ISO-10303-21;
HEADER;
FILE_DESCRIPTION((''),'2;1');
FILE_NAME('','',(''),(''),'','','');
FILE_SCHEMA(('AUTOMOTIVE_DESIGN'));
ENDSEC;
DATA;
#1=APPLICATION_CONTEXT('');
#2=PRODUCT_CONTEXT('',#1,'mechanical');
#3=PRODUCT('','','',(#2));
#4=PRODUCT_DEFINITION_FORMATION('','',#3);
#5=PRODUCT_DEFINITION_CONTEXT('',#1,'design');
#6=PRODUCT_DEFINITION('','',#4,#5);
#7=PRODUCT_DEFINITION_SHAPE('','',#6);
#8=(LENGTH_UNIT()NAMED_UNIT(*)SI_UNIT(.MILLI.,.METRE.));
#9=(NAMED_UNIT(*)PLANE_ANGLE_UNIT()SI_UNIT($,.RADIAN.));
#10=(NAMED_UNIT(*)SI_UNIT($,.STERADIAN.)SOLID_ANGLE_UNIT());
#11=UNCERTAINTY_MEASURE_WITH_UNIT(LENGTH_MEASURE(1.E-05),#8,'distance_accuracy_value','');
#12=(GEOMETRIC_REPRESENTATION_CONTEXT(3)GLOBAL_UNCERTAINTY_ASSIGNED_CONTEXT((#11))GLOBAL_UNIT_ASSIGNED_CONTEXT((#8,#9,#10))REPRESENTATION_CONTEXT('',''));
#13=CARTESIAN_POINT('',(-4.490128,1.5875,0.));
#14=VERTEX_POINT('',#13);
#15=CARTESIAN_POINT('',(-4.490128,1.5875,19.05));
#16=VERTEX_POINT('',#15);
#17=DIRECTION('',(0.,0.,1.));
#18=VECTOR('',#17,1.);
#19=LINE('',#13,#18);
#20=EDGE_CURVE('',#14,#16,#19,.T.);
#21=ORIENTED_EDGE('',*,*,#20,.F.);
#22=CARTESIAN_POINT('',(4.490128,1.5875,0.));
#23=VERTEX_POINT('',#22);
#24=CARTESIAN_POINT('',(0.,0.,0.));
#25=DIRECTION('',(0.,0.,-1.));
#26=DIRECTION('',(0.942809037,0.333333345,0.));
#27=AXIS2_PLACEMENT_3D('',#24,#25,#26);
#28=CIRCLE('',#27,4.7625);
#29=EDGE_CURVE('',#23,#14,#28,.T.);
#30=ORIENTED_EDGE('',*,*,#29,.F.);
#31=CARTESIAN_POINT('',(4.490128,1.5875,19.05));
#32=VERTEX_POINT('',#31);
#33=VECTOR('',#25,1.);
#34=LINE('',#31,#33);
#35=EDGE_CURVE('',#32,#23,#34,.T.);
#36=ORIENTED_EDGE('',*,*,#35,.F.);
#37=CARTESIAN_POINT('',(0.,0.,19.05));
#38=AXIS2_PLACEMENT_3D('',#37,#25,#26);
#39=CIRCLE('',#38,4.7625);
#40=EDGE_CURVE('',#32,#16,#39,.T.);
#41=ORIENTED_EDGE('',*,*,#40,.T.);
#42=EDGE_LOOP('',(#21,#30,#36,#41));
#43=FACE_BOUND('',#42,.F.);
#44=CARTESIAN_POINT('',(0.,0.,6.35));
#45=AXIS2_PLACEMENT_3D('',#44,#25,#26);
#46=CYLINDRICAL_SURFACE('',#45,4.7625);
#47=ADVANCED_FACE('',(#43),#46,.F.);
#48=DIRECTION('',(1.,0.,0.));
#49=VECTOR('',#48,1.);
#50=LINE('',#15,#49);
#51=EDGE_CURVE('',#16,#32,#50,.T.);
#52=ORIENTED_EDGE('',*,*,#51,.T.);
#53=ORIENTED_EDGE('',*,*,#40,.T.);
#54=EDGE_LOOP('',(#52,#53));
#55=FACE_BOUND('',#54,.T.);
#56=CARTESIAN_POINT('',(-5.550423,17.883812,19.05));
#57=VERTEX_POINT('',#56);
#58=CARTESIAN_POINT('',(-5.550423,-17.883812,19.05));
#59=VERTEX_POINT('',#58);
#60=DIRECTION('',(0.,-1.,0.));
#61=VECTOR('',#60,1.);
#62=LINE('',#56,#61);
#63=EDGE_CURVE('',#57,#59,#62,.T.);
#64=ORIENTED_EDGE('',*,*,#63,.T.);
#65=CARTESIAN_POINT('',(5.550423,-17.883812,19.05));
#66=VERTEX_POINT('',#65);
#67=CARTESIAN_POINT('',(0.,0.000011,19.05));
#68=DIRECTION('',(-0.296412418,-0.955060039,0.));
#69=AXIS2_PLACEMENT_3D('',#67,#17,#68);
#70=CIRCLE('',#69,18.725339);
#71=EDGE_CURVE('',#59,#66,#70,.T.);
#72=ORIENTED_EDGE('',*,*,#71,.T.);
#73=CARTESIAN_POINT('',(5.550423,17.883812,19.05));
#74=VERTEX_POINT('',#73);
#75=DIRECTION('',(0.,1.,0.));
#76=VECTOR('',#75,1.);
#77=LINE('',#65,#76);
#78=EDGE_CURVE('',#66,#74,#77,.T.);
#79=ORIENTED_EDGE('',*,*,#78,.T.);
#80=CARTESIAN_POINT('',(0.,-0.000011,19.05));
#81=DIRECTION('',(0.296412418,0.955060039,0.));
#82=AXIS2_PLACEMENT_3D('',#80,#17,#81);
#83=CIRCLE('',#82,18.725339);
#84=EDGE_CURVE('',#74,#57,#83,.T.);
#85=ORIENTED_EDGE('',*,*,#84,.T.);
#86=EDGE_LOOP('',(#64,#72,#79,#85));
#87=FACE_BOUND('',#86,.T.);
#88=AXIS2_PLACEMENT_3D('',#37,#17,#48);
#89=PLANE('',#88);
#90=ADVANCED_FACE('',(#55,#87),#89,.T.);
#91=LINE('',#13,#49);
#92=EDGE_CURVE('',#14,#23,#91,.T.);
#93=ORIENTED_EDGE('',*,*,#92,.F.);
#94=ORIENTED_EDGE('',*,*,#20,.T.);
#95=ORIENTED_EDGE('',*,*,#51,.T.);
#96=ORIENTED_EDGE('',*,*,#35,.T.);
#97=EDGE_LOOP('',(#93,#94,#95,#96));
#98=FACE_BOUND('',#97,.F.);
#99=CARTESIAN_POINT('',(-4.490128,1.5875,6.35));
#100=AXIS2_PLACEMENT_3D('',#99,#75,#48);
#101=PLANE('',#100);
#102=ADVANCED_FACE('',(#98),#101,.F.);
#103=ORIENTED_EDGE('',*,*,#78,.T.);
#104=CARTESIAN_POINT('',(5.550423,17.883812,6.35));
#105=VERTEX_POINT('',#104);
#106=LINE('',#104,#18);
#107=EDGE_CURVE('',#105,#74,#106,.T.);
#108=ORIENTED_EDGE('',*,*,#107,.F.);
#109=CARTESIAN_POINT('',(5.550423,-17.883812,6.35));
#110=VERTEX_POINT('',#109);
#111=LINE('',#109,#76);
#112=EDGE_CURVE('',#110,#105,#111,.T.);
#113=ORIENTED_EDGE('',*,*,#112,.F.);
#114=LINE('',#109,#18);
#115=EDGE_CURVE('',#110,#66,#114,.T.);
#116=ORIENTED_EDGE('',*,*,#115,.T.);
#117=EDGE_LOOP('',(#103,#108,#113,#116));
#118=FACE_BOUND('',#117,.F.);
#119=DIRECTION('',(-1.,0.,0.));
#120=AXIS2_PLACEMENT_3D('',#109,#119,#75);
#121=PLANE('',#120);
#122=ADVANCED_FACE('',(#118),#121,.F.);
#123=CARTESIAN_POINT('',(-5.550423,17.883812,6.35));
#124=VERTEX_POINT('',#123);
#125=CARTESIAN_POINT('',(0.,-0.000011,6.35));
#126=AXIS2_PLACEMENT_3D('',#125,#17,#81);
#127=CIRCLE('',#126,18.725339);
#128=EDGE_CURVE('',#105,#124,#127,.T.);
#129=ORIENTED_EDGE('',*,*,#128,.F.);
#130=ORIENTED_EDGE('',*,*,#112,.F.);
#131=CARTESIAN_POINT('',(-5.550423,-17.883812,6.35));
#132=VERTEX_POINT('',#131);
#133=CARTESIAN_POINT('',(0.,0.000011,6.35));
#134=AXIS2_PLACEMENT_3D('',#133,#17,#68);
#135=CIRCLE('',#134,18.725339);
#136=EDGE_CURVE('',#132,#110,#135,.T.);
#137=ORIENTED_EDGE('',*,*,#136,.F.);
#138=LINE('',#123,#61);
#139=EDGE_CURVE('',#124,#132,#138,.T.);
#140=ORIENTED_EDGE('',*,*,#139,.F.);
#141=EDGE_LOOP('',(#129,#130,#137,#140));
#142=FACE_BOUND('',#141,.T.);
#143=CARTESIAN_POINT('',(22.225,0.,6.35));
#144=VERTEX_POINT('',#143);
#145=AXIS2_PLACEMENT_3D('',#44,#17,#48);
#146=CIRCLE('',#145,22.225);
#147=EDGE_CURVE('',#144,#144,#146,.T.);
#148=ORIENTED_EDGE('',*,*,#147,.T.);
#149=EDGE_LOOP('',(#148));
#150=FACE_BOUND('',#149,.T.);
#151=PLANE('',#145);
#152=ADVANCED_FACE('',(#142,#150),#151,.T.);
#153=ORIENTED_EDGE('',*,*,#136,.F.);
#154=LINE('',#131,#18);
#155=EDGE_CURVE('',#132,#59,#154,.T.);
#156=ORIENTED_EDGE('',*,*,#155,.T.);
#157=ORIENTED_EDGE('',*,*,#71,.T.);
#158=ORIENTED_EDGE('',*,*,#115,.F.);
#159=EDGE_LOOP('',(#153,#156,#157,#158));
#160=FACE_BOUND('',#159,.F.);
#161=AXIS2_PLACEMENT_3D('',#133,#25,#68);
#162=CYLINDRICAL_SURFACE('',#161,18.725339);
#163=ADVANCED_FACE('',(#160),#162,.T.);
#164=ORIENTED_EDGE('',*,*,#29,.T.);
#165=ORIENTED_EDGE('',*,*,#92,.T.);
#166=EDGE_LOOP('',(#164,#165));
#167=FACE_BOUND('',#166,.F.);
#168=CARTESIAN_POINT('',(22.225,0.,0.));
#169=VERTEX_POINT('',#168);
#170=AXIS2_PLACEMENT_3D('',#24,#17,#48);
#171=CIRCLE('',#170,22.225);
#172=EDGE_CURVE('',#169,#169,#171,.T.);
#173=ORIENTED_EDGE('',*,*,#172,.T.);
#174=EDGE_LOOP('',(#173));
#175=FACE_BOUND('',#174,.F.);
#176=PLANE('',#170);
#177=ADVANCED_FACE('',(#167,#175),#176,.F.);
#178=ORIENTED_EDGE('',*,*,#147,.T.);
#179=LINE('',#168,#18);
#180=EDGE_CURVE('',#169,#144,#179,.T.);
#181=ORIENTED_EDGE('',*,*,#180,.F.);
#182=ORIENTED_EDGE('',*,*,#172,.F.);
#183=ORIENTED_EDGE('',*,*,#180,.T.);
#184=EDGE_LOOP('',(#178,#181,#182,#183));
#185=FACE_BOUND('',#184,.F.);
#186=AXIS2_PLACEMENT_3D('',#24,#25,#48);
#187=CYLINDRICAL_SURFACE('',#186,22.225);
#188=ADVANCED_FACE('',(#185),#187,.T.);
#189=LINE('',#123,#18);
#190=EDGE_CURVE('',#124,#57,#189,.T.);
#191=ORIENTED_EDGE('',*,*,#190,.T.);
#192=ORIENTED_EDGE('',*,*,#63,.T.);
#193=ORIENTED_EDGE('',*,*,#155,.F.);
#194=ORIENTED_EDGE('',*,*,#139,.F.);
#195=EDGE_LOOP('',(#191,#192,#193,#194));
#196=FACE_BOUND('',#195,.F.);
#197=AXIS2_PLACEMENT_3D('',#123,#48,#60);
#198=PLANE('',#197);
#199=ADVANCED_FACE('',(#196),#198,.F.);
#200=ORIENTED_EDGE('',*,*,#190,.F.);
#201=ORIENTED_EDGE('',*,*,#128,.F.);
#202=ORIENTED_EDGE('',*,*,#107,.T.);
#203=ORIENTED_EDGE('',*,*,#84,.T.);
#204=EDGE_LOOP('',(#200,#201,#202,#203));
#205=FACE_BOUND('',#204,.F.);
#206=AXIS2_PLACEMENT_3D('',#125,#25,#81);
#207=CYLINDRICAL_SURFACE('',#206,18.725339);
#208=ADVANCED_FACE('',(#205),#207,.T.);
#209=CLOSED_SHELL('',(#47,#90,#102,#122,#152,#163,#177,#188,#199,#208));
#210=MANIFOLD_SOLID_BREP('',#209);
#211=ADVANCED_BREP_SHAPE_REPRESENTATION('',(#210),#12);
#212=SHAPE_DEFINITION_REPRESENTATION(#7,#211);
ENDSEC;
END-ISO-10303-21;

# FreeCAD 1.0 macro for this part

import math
import FreeCAD as App
import Part
import Sketcher
from FreeCAD import Vector
Q = App.Units.Quantity

doc = App.newDocument("Part")
body = doc.addObject("PartDesign::Body", "Body")

# Sketch on XY plane
sketch1 = body.newObject("Sketcher::SketchObject", "Sketch")
sketch1.AttachmentSupport = (doc.getObject("XY_Plane"), [""])
sketch1.MapMode = "FlatFace"
sketch1.addGeometry([
    Part.Circle(Vector(0, 0, 0), Vector(0, 0, 1), 22.2),
    Part.LineSegment(Vector(-4.5, 1.6, 0), Vector(4.5, 1.6, 0)),
    Part.ArcOfCircle(Part.Circle(Vector(0, 0, 0), Vector(0, 0, 1), 4.8), math.radians(161), math.radians(379)),
], False)
sketch1.addConstraint([
    Sketcher.Constraint("Coincident", 1, 1, 2, 1),
    Sketcher.Constraint("Coincident", 2, 2, 1, 2),
    Sketcher.Constraint("Horizontal", 1),
    Sketcher.Constraint("Coincident", 0, 3, -1, 1),
    Sketcher.Constraint("Coincident", 2, 3, -1, 1),
    Sketcher.Constraint("Diameter", 0, Q("1.75 in")),
    Sketcher.Constraint("Radius", 2, Q("0.1875 in")),
    Sketcher.Constraint("DistanceY", -1, 1, 1, 1, Q("0.0625 in")),
])
pad1 = body.newObject("PartDesign::Pad", "Pad")
pad1.Profile = sketch1
pad1.Length = Q("0.25 in")

# Sketch on XY plane
sketch2 = body.newObject("Sketcher::SketchObject", "Sketch001")
sketch2.AttachmentSupport = (doc.getObject("XY_Plane"), [""])
sketch2.MapMode = "FlatFace"
sketch2.AttachmentOffset = App.Placement(Vector(0, 0, 0.25 * 25.4), App.Rotation())
sketch2.addGeometry([
    Part.LineSegment(Vector(-5.550423, 17.883812, 0), Vector(-5.550423, -17.883812, 0)),  # 0
    Part.ArcOfCircle(Part.Circle(Vector(0, 0.000011, 0), Vector(0, 0, 1), 18.725339), math.radians(-107.242251), math.radians(-72.757749)),  # 1
    Part.LineSegment(Vector(5.550423, -17.883812, 0), Vector(5.550423, 17.883812, 0)),  # 2
    Part.ArcOfCircle(Part.Circle(Vector(0, -0.000011, 0), Vector(0, 0, 1), 18.725339), math.radians(72.757749), math.radians(107.242251)),  # 3
    Part.ArcOfCircle(Part.Circle(Vector(0, 0, 0), Vector(0, 0, 1), 4.7625), math.radians(160.528779), math.radians(379.471221)),  # 4
    Part.LineSegment(Vector(-4.490128, 1.5875, 0), Vector(4.490128, 1.5875, 0)),  # 5
], False)
sketch2.addConstraint([
    Sketcher.Constraint("Coincident", 0, 2, 1, 1),
    Sketcher.Constraint("Coincident", 1, 2, 2, 1),
    Sketcher.Constraint("Coincident", 2, 2, 3, 1),
    Sketcher.Constraint("Coincident", 3, 2, 0, 1),
    Sketcher.Constraint("Coincident", 4, 1, 5, 1),
    Sketcher.Constraint("Coincident", 5, 2, 4, 2),
    Sketcher.Constraint("Vertical", 0),
    Sketcher.Constraint("Vertical", 2),
    Sketcher.Constraint("Horizontal", 5),
    Sketcher.Constraint("Coincident", 4, 3, -1, 1),
    Sketcher.Constraint("Equal", 1, 3),
    Sketcher.Constraint("Symmetric", 1, 3, 3, 3, -1, 1),
    Sketcher.Constraint("Symmetric", 0, 2, 1, 2, -2),
    Sketcher.Constraint("Radius", 4, Q("0.1875 in")),
    Sketcher.Constraint("DistanceY", -1, 1, 4, 1, Q("0.0625 in")),
    Sketcher.Constraint("Radius", 1, 18.725339),
    Sketcher.Constraint("DistanceY", 0, 2, 3, 3, 17.883801),
    Sketcher.Constraint("DistanceY", 0, 2, 0, 1, 35.767624),
])
pad2 = body.newObject("PartDesign::Pad", "Pad001")
pad2.Profile = sketch2
pad2.Length = Q("0.5 in")

doc.recompute()
